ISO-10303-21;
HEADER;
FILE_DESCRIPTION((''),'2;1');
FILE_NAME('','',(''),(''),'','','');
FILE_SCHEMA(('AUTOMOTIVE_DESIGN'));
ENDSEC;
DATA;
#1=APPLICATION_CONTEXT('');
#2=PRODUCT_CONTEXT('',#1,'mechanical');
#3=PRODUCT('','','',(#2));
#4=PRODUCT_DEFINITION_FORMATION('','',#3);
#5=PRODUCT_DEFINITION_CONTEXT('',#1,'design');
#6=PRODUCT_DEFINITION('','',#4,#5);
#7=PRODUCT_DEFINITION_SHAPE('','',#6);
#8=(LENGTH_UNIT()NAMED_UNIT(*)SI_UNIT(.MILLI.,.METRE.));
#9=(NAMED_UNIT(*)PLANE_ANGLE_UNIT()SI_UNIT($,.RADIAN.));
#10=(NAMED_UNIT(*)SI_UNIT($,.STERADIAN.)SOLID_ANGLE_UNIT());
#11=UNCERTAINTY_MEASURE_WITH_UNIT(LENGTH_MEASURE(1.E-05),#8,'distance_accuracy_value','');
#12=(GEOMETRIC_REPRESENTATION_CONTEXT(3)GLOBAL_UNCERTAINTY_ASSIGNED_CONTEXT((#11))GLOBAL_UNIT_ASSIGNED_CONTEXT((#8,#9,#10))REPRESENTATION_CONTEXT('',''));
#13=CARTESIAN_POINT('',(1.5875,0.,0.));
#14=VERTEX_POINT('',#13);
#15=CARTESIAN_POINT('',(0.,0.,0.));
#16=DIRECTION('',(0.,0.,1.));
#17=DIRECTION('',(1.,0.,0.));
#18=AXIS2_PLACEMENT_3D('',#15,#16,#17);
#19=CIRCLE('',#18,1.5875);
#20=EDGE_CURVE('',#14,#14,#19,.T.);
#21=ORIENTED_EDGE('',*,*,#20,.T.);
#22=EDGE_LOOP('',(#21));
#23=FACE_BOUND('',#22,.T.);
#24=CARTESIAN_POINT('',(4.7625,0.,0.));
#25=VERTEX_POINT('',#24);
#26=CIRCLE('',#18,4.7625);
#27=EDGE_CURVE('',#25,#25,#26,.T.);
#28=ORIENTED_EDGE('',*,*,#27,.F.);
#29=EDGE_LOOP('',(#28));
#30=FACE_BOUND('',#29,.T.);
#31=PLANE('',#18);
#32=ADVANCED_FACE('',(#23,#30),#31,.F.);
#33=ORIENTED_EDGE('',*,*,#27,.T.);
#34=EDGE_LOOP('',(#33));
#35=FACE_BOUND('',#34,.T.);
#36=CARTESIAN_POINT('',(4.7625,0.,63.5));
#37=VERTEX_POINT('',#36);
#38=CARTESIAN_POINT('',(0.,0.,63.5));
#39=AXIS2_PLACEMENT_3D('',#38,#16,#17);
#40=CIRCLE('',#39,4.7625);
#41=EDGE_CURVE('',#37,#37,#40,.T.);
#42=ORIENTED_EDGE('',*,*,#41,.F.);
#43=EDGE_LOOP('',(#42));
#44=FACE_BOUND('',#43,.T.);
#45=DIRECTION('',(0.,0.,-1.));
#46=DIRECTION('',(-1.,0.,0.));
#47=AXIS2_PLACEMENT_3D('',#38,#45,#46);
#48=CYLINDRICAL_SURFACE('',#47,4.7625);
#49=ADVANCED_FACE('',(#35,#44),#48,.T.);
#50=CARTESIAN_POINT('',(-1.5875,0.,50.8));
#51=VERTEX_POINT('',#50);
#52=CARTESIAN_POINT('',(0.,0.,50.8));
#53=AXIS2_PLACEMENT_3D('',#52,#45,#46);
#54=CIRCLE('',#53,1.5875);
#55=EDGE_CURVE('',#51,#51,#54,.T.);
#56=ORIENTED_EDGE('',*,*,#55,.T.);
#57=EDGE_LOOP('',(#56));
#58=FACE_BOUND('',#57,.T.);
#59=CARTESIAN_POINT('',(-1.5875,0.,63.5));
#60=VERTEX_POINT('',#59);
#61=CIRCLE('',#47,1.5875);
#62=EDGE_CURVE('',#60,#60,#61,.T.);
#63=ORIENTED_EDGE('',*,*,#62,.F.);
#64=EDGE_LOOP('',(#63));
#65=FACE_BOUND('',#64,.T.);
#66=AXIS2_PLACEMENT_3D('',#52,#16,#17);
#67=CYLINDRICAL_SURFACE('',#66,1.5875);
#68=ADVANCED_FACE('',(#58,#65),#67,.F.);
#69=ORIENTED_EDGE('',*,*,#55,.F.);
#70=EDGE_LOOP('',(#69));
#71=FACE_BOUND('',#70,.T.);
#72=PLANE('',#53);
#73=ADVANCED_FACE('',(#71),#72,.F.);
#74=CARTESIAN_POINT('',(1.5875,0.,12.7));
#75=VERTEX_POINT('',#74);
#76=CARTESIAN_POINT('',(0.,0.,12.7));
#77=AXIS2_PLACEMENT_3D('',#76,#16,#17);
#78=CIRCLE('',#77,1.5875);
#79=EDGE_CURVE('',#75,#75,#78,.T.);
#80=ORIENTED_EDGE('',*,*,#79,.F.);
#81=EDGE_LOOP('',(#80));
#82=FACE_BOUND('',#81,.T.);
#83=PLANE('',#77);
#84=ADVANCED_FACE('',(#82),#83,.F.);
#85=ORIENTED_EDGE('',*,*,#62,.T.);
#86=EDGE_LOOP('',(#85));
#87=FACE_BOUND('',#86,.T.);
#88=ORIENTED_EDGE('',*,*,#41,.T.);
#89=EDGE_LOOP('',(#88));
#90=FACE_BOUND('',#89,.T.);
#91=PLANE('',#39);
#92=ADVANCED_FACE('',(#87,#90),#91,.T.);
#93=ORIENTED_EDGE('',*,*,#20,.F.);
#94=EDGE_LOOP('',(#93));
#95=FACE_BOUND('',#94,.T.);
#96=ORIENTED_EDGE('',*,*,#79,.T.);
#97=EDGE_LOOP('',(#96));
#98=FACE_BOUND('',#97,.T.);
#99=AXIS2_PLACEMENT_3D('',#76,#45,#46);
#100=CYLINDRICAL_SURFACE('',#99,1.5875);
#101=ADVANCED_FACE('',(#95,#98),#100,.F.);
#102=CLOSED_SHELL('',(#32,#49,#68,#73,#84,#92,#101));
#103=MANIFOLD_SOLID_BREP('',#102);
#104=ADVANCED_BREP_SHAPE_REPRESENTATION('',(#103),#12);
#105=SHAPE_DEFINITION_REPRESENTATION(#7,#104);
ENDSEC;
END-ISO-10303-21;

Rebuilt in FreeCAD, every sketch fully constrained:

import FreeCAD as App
import Part
import Sketcher
from FreeCAD import Vector
Q = App.Units.Quantity

doc = App.newDocument("Part")
body = doc.addObject("PartDesign::Body", "Body")

sketch1 = body.newObject("Sketcher::SketchObject", "Sketch")
sketch1.AttachmentSupport = (doc.getObject("XY_Plane"), [""])
sketch1.MapMode = "FlatFace"
sketch1.addGeometry(Part.Circle(Vector(0, 0, 0), Vector(0, 0, 1), 4.7625), False)
sketch1.addConstraint([
    Sketcher.Constraint("Coincident", 0, 3, -1, 1),
    Sketcher.Constraint("Diameter", 0, Q("0.375 in")),
])
pad1 = body.newObject("PartDesign::Pad", "Pad")
pad1.Profile = sketch1
pad1.Length = Q("2.5 in")

sketch2 = body.newObject("Sketcher::SketchObject", "Sketch001")
sketch2.AttachmentSupport = (doc.getObject("XY_Plane"), [""])
sketch2.MapMode = "FlatFace"
sketch2.addGeometry(Part.Circle(Vector(0, 0, 0), Vector(0, 0, 1), 1.5875), False)
sketch2.addConstraint([
    Sketcher.Constraint("Coincident", 0, 3, -1, 1),
    Sketcher.Constraint("Diameter", 0, Q("0.125 in")),
])
pocket1 = body.newObject("PartDesign::Pocket", "Pocket")
pocket1.Profile = sketch2
pocket1.Length = Q("0.5 in")
pocket1.Reversed = True

sketch3 = body.newObject("Sketcher::SketchObject", "Sketch002")
sketch3.AttachmentSupport = (doc.getObject("XY_Plane"), [""])
sketch3.MapMode = "FlatFace"
sketch3.AttachmentOffset = App.Placement(Vector(0, 0, 2 * 25.4), App.Rotation())
sketch3.addGeometry(Part.Circle(Vector(0, 0, 0), Vector(0, 0, 1), 1.5875), False)
sketch3.addConstraint([
    Sketcher.Constraint("Coincident", 0, 3, -1, 1),
    Sketcher.Constraint("Diameter", 0, Q("0.125 in")),
])
pocket2 = body.newObject("PartDesign::Pocket", "Pocket001")
pocket2.Profile = sketch3
pocket2.Length = Q("0.5 in")
pocket2.Reversed = True

doc.recompute()
